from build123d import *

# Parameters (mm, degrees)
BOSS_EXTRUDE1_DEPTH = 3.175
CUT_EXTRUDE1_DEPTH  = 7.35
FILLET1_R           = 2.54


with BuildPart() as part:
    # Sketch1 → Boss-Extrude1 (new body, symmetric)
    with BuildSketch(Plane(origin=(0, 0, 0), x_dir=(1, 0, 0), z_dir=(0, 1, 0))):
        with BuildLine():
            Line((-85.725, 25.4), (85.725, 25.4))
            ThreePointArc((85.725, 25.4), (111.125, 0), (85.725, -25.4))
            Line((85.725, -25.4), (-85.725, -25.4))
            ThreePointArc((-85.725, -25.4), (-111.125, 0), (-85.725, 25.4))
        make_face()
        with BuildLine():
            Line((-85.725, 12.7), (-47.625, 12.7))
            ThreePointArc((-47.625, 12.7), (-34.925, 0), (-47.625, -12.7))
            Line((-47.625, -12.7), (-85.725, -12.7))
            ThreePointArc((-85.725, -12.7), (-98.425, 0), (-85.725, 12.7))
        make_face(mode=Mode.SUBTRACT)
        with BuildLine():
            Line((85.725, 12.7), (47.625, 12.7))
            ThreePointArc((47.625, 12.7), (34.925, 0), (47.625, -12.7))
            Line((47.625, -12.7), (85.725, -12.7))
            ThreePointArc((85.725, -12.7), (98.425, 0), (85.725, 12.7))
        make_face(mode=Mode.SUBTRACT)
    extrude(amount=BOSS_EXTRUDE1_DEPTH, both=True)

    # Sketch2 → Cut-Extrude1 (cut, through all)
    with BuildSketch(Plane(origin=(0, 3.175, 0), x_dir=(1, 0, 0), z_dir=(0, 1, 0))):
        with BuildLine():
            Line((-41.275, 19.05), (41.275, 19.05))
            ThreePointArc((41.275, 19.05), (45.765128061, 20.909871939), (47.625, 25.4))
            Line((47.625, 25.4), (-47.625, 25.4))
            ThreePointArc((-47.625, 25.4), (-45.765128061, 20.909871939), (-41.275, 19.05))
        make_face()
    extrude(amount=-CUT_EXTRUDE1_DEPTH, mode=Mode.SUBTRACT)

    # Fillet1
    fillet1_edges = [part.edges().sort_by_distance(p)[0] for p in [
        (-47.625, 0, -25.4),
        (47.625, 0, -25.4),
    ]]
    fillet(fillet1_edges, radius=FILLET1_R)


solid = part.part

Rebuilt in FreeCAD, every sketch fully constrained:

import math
import FreeCAD as App
import Part
import Sketcher
from FreeCAD import Vector
Q = App.Units.Quantity


def edges_at(feature, points):
    """Names of the edges that pass closest to the given points."""
    edges = feature.Shape.Edges
    near = lambda p: min(range(len(edges)), key=lambda i: edges[i].distToShape(Part.Vertex(*p))[0])
    return sorted({f"Edge{near(p) + 1}" for p in points})

doc = App.newDocument("Part")
body = doc.addObject("PartDesign::Body", "Body")

sketch1 = body.newObject("Sketcher::SketchObject", "Sketch")
sketch1.AttachmentSupport = (doc.getObject("XZ_Plane"), [""])
sketch1.MapMode = "FlatFace"
sketch1.addGeometry(Part.LineSegment(Vector(85.725, -25.4, 0), Vector(-85.725, -25.4, 0)), False)
sketch1.addGeometry(Part.ArcOfCircle(Part.Circle(Vector(-85.725, 0, 0), Vector(0, 0, 1), 25.4), math.radians(90), math.radians(270)), False)
sketch1.addGeometry(Part.LineSegment(Vector(-85.725, 25.4, 0), Vector(85.725, 25.4, 0)), False)
sketch1.addGeometry(Part.ArcOfCircle(Part.Circle(Vector(85.725, 0, 0), Vector(0, 0, 1), 25.4), math.radians(-90), math.radians(90)), False)
sketch1.addGeometry(Part.ArcOfCircle(Part.Circle(Vector(85.725, 0, 0), Vector(0, 0, 1), 12.7), math.radians(-90), math.radians(90)), False)
sketch1.addGeometry(Part.LineSegment(Vector(85.725, 12.7, 0), Vector(47.625, 12.7, 0)), False)
sketch1.addGeometry(Part.ArcOfCircle(Part.Circle(Vector(47.625, 0, 0), Vector(0, 0, 1), 12.7), math.radians(90), math.radians(270)), False)
sketch1.addGeometry(Part.LineSegment(Vector(47.625, -12.7, 0), Vector(85.725, -12.7, 0)), False)
sketch1.addGeometry(Part.LineSegment(Vector(-85.725, -12.7, 0), Vector(-47.625, -12.7, 0)), False)
sketch1.addGeometry(Part.ArcOfCircle(Part.Circle(Vector(-47.625, 0, 0), Vector(0, 0, 1), 12.7), math.radians(-90), math.radians(90)), False)
sketch1.addGeometry(Part.LineSegment(Vector(-47.625, 12.7, 0), Vector(-85.725, 12.7, 0)), False)
sketch1.addGeometry(Part.ArcOfCircle(Part.Circle(Vector(-85.725, 0, 0), Vector(0, 0, 1), 12.7), math.radians(90), math.radians(270)), False)
sketch1.addConstraint(Sketcher.Constraint("Tangent", 0, 2, 1, 2))
sketch1.addConstraint(Sketcher.Constraint("Tangent", 1, 1, 2, 1))
sketch1.addConstraint(Sketcher.Constraint("Tangent", 2, 2, 3, 2))
sketch1.addConstraint(Sketcher.Constraint("Tangent", 3, 1, 0, 1))
sketch1.addConstraint(Sketcher.Constraint("Tangent", 4, 2, 5, 1))
sketch1.addConstraint(Sketcher.Constraint("Tangent", 5, 2, 6, 1))
sketch1.addConstraint(Sketcher.Constraint("Tangent", 6, 2, 7, 1))
sketch1.addConstraint(Sketcher.Constraint("Tangent", 7, 2, 4, 1))
sketch1.addConstraint(Sketcher.Constraint("Tangent", 8, 2, 9, 1))
sketch1.addConstraint(Sketcher.Constraint("Tangent", 9, 2, 10, 1))
sketch1.addConstraint(Sketcher.Constraint("Tangent", 10, 2, 11, 1))
sketch1.addConstraint(Sketcher.Constraint("Tangent", 11, 2, 8, 1))
sketch1.addConstraint(Sketcher.Constraint("Horizontal", 0))
sketch1.addConstraint(Sketcher.Constraint("Horizontal", 2))
sketch1.addConstraint(Sketcher.Constraint("Horizontal", 5))
sketch1.addConstraint(Sketcher.Constraint("Horizontal", 7))
sketch1.addConstraint(Sketcher.Constraint("Horizontal", 8))
sketch1.addConstraint(Sketcher.Constraint("Horizontal", 10))
sketch1.addConstraint(Sketcher.Constraint("Coincident", 4, 3, 3, 3))
sketch1.addConstraint(Sketcher.Constraint("Coincident", 11, 3, 1, 3))
sketch1.addConstraint(Sketcher.Constraint("Equal", 6, 9))
sketch1.addConstraint(Sketcher.Constraint("Symmetric", 1, 3, 3, 3, -1, 1))
sketch1.addConstraint(Sketcher.Constraint("Equal", 7, 8))
sketch1.addConstraint(Sketcher.Constraint("Radius", 1, Q("1 in")))
sketch1.addConstraint(Sketcher.Constraint("Radius", 4, Q("0.5 in")))
sketch1.addConstraint(Sketcher.Constraint("DistanceX", 5, 2, 5, 1, Q("1.5 in")))
sketch1.addConstraint(Sketcher.Constraint("DistanceX", 0, 2, 0, 1, Q("6.75 in")))
pad1 = body.newObject("PartDesign::Pad", "Pad")
pad1.Profile = sketch1
pad1.Length = Q("0.25 in")
pad1.Midplane = True

sketch2 = body.newObject("Sketcher::SketchObject", "Sketch001")
sketch2.AttachmentSupport = (doc.getObject("XZ_Plane"), [""])
sketch2.MapMode = "FlatFace"
sketch2.AttachmentOffset = App.Placement(Vector(0, 0, -0.125 * 25.4), App.Rotation())
sketch2.addGeometry(Part.LineSegment(Vector(-41.275, -19.05, 0), Vector(41.275, -19.05, 0)), False)
sketch2.addGeometry(Part.ArcOfCircle(Part.Circle(Vector(41.275, -25.4, 0), Vector(0, 0, 1), 6.35), math.radians(0), math.radians(90)), False)
sketch2.addGeometry(Part.LineSegment(Vector(47.625, -25.4, 0), Vector(-47.625, -25.4, 0)), False)
sketch2.addGeometry(Part.ArcOfCircle(Part.Circle(Vector(-41.275, -25.4, 0), Vector(0, 0, 1), 6.35), math.radians(90), math.radians(180)), False)
sketch2.addConstraint(Sketcher.Constraint("Tangent", 0, 2, 1, 2))
sketch2.addConstraint(Sketcher.Constraint("Coincident", 1, 1, 2, 1))
sketch2.addConstraint(Sketcher.Constraint("Coincident", 2, 2, 3, 2))
sketch2.addConstraint(Sketcher.Constraint("Tangent", 3, 1, 0, 1))
sketch2.addConstraint(Sketcher.Constraint("Horizontal", 0))
sketch2.addConstraint(Sketcher.Constraint("Horizontal", 2))
sketch2.addConstraint(Sketcher.Constraint("Equal", 1, 3))
sketch2.addConstraint(Sketcher.Constraint("Horizontal", 3, 3, 1, 1))
sketch2.addConstraint(Sketcher.Constraint("Radius", 1, Q("0.25 in")))
sketch2.addConstraint(Sketcher.Constraint("DistanceY", 1, 3, -1, 1, Q("1 in")))
sketch2.addConstraint(Sketcher.Constraint("DistanceX", 0, 1, 0, 2, Q("3.25 in")))
sketch2.addConstraint(Sketcher.Constraint("DistanceX", -1, 1, 1, 3, Q("1.625 in")))
pocket1 = body.newObject("PartDesign::Pocket", "Pocket")
pocket1.Profile = sketch2
pocket1.Type = "ThroughAll"
pocket1.Reversed = True
doc.recompute()

fillet = body.newObject("PartDesign::Fillet", "Fillet")
fillet.Base = (pocket1, edges_at(pocket1, [(-47.625, 0, -25.4), (47.625, 0, -25.4)]))
fillet.Radius = Q("0.1 in")

doc.recompute()
